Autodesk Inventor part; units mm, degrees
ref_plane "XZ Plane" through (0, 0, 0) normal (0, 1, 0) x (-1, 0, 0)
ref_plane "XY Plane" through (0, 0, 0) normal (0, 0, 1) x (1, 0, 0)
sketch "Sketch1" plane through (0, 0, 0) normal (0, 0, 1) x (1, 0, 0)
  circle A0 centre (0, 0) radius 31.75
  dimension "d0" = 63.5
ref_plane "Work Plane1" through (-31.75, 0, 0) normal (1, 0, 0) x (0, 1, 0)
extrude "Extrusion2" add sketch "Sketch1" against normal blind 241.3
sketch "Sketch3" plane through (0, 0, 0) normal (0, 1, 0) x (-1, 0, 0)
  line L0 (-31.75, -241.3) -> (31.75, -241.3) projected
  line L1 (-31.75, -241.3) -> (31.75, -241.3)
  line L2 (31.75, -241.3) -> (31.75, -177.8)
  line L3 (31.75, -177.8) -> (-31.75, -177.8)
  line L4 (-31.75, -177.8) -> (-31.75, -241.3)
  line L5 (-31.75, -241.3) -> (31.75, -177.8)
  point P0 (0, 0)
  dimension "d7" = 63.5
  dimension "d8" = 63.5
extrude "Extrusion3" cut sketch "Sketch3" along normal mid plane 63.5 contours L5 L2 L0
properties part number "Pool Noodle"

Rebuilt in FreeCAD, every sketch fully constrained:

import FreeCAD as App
import Part
import Sketcher
Q = App.Units.Quantity


def add_polygon(sketch, points):
    """Adds a closed chain of lines whose ends are joined by coincident constraints."""
    first, n = sketch.GeometryCount, len(points)
    for a, b in zip(points, points[1:] + points[:1]):
        sketch.addGeometry(Part.LineSegment(App.Vector(*a, 0), App.Vector(*b, 0)), False)
    for i in range(n):
        sketch.addConstraint(Sketcher.Constraint("Coincident", first + i, 2, first + (i + 1) % n, 1))

doc = App.newDocument("Part")
body = doc.addObject("PartDesign::Body", "Body")

sketch1 = doc.addObject("Sketcher::SketchObject", "Sketch")
body.addObject(sketch1)
sketch1.AttachmentSupport = (doc.XY_Plane, [""])
sketch1.MapMode = "FlatFace"
sketch1.addGeometry(Part.Circle(App.Vector(0, 0, 0), App.Vector(0, 0, 1), 32), False)
sketch1.addConstraint(Sketcher.Constraint("Coincident", 0, 3, -1, 1))
sketch1.addConstraint(Sketcher.Constraint("Diameter", 0, Q("2.5 in")))
pad1 = doc.addObject("PartDesign::Pad", "Pad")
body.addObject(pad1)
pad1.Profile = sketch1
pad1.Length = Q("9.5 in")
pad1.Reversed = True

sketch2 = doc.addObject("Sketcher::SketchObject", "Sketch001")
body.addObject(sketch2)
sketch2.AttachmentSupport = (doc.XZ_Plane, [""])
sketch2.MapMode = "FlatFace"
add_polygon(sketch2, [(-32, -178), (32, -241), (-32, -241)])
sketch2.addConstraint(Sketcher.Constraint("Horizontal", 1))
sketch2.addConstraint(Sketcher.Constraint("Vertical", 2))
sketch2.addConstraint(Sketcher.Constraint("Equal", 1, 2))
sketch2.addConstraint(Sketcher.Constraint("DistanceX", 1, 2, 1, 1, Q("2.5 in")))
sketch2.addConstraint(Sketcher.Constraint("DistanceY", 2, 2, -1, 1, Q("7 in")))
sketch2.addConstraint(Sketcher.Constraint("DistanceX", -1, 1, 0, 2, Q("1.25 in")))
pocket1 = doc.addObject("PartDesign::Pocket", "Pocket")
body.addObject(pocket1)
pocket1.Profile = sketch2
pocket1.Length = Q("2.5 in")
pocket1.Midplane = True

doc.recompute()
